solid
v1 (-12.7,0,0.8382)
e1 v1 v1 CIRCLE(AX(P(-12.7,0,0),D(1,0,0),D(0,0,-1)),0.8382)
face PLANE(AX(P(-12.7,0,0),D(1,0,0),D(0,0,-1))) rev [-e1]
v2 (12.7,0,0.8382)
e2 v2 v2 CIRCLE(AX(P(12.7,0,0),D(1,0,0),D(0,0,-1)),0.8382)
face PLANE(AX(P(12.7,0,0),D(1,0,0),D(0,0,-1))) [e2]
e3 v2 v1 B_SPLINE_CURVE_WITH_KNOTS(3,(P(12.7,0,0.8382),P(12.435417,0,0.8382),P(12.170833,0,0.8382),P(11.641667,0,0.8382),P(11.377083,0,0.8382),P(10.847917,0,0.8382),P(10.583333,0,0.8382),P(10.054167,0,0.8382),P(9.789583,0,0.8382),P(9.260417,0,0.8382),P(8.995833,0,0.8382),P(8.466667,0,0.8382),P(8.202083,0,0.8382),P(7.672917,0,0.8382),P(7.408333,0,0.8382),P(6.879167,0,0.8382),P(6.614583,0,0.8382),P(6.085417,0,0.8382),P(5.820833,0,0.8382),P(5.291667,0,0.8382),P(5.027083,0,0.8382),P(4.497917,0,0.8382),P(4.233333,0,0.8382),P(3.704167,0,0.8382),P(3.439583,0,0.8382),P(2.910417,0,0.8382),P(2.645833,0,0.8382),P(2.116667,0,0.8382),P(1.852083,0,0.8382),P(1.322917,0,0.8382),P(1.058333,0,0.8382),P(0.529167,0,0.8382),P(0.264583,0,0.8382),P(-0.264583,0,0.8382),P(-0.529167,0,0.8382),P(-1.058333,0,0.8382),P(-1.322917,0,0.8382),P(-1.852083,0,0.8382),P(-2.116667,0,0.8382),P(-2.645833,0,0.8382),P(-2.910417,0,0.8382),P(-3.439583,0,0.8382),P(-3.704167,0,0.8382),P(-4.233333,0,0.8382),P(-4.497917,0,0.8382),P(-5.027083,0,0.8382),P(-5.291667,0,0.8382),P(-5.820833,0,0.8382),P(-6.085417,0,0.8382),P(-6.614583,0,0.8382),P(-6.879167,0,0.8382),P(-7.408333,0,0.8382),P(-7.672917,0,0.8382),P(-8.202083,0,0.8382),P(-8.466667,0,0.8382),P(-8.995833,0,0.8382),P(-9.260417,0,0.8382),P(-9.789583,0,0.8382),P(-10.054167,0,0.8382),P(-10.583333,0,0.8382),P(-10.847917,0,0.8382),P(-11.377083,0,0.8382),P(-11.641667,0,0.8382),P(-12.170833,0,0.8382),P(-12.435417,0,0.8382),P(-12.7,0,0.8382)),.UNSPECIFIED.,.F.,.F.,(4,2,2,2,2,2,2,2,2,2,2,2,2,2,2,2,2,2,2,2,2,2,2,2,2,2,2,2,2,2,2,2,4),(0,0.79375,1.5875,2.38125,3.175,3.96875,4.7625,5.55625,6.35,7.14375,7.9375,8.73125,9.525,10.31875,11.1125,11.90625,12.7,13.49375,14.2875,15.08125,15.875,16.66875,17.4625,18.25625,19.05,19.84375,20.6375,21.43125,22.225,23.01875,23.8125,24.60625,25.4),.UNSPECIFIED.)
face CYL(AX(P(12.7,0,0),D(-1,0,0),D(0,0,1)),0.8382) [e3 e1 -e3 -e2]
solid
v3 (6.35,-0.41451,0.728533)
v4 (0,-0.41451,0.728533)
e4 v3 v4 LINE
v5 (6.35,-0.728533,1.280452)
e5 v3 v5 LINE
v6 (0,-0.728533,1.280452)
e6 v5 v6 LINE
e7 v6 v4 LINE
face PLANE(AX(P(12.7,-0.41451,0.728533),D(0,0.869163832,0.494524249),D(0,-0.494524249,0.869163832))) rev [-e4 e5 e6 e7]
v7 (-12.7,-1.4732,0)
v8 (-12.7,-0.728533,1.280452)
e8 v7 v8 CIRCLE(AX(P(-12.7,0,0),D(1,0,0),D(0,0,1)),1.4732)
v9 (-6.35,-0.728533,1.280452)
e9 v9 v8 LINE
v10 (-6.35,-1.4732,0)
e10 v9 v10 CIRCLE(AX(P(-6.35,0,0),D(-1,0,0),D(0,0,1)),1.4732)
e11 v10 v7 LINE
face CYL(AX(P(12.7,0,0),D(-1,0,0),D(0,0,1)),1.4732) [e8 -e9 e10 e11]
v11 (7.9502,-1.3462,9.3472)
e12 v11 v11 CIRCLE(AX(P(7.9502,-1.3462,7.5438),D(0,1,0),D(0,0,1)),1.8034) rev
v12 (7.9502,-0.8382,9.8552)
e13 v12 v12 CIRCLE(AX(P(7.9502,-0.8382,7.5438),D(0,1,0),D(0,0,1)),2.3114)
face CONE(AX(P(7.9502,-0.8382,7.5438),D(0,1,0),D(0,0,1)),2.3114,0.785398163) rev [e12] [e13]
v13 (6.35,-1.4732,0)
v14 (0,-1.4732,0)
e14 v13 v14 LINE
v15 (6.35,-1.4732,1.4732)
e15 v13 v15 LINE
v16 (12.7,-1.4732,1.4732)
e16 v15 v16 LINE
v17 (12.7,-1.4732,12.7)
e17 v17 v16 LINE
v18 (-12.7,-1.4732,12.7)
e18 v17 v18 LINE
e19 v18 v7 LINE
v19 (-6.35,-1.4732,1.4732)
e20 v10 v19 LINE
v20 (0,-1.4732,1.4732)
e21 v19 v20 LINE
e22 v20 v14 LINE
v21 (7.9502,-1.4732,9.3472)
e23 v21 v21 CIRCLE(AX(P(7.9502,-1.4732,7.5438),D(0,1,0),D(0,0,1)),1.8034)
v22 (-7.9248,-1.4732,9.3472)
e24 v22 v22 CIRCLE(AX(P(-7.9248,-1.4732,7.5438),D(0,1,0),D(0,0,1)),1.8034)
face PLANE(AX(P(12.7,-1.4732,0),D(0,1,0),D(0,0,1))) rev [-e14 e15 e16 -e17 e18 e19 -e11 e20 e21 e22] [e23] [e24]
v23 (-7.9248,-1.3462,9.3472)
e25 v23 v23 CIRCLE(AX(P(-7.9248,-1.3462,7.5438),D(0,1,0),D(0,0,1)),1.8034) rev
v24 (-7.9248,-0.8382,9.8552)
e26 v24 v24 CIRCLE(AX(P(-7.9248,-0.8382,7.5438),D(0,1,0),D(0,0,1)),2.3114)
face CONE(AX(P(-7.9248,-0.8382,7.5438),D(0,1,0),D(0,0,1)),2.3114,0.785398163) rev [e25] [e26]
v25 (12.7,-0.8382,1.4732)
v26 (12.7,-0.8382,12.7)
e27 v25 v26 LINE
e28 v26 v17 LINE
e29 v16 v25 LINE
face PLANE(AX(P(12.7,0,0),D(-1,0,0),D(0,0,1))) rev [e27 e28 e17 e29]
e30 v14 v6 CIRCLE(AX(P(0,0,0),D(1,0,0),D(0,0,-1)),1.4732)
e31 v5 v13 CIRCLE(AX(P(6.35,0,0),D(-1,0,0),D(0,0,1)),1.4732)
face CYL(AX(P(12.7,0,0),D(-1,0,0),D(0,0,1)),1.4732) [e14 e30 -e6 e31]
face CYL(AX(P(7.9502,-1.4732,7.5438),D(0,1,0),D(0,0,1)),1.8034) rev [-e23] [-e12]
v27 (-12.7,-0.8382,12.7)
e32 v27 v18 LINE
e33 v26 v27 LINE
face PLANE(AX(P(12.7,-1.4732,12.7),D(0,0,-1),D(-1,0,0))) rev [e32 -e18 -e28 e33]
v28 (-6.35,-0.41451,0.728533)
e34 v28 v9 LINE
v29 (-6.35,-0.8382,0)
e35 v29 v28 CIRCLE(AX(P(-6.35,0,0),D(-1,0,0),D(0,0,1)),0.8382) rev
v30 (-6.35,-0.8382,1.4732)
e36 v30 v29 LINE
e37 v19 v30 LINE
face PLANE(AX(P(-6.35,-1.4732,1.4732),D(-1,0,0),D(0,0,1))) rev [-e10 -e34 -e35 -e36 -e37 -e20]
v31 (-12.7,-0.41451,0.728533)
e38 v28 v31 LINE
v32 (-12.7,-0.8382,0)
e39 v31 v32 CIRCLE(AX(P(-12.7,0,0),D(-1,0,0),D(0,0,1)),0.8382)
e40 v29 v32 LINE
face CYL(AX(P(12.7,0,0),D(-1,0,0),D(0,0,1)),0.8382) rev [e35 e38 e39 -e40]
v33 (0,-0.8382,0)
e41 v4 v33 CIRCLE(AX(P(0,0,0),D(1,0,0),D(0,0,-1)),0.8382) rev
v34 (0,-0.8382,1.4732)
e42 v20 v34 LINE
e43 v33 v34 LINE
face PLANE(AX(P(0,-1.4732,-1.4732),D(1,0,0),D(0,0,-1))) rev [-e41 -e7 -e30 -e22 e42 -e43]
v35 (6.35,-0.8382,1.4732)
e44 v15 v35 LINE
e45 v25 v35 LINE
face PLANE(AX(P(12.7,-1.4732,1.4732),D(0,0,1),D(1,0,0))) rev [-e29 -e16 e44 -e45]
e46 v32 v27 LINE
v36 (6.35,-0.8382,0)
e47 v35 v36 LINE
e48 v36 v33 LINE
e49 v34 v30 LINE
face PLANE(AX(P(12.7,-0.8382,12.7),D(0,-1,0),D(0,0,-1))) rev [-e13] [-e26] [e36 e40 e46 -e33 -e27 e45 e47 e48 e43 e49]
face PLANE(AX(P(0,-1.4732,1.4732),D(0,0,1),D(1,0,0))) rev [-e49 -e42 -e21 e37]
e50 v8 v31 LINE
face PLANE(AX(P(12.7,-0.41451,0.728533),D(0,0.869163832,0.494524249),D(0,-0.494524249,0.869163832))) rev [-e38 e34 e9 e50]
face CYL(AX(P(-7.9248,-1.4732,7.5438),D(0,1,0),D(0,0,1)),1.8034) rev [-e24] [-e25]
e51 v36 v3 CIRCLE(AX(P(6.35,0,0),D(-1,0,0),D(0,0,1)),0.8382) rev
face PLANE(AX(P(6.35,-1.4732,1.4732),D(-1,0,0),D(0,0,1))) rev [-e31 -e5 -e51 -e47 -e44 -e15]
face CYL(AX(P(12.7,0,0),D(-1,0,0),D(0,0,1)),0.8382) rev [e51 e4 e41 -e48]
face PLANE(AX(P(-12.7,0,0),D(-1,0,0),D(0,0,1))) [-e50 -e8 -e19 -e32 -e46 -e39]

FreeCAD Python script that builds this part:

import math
import FreeCAD as App
import Part
import Sketcher
Q = App.Units.Quantity

doc = App.newDocument("Part")
body = doc.addObject("PartDesign::Body", "Body")

# Sketch on YZ plane
sketch1 = body.newObject("Sketcher::SketchObject", "Sketch")
sketch1.AttachmentSupport = (doc.getObject("YZ_Plane"), [""])
sketch1.MapMode = "FlatFace"
sketch1.addGeometry([
    Part.LineSegment(App.Vector(-1.5, 12.7, 0), App.Vector(-1.5, 0, 0)),  # 0
    Part.ArcOfCircle(Part.Circle(App.Vector(0, 0, 0), App.Vector(0, 0, 1), 1.5), math.radians(180), math.radians(480)),  # 1
    Part.LineSegment(App.Vector(-0.7, 1.3, 0), App.Vector(-0.4, 0.7, 0)),  # 2
    Part.ArcOfCircle(Part.Circle(App.Vector(0, 0, 0), App.Vector(0, 0, 1), 0.8), math.radians(180), math.radians(480)),  # 3
    Part.LineSegment(App.Vector(-0.8, 0, 0), App.Vector(-0.8, 12.7, 0)),  # 4
    Part.LineSegment(App.Vector(-0.8, 12.7, 0), App.Vector(-1.5, 12.7, 0)),  # 5
], False)
sketch1.addConstraint([
    Sketcher.Constraint("Tangent", 0, 2, 1, 1),
    Sketcher.Constraint("Coincident", 1, 2, 2, 1),
    Sketcher.Constraint("Coincident", 2, 2, 3, 2),
    Sketcher.Constraint("Tangent", 3, 1, 4, 1),
    Sketcher.Constraint("Coincident", 4, 2, 5, 1),
    Sketcher.Constraint("Coincident", 5, 2, 0, 1),
    Sketcher.Constraint("Vertical", 0),
    Sketcher.Constraint("Vertical", 4),
    Sketcher.Constraint("Horizontal", 5),
    Sketcher.Constraint("Coincident", 1, 3, -1, 1),
    Sketcher.Constraint("Coincident", 3, 3, -1, 1),
    Sketcher.Constraint("DistanceY", 0, 2, 0, 1, Q("0.5 in")),
    Sketcher.Constraint("Radius", 1, Q("0.058 in")),
    Sketcher.Constraint("Radius", 3, Q("0.033 in")),
    Sketcher.Constraint("DistanceX", 2, 2, -1, 1, Q("0.41451 mm")),
    Sketcher.Constraint("DistanceY", 2, 2, 1, 2, Q("0.551919 mm")),
])
pad1 = body.newObject("PartDesign::Pad", "Pad")
pad1.Profile = sketch1
pad1.Length = Q("1 in")
pad1.Midplane = True

# Sketch on XZ plane
sketch2 = body.newObject("Sketcher::SketchObject", "Sketch001")
sketch2.AttachmentSupport = (doc.getObject("XZ_Plane"), [""])
sketch2.MapMode = "FlatFace"
sketch2.addGeometry([
    Part.LineSegment(App.Vector(-6.3, -1.5, 0), App.Vector(-6.3, 1.5, 0)),
    Part.LineSegment(App.Vector(-6.3, 1.5, 0), App.Vector(0, 1.5, 0)),
    Part.LineSegment(App.Vector(0, 1.5, 0), App.Vector(0, -1.5, 0)),
    Part.LineSegment(App.Vector(0, -1.5, 0), App.Vector(-6.3, -1.5, 0)),
], False)
sketch2.addConstraint([
    Sketcher.Constraint("Coincident", 0, 2, 1, 1),
    Sketcher.Constraint("Coincident", 1, 2, 2, 1),
    Sketcher.Constraint("Coincident", 2, 2, 3, 1),
    Sketcher.Constraint("Coincident", 3, 2, 0, 1),
    Sketcher.Constraint("Vertical", 0),
    Sketcher.Constraint("Horizontal", 1),
    Sketcher.Constraint("Vertical", 2),
    Sketcher.Constraint("Horizontal", 3),
    Sketcher.Constraint("Symmetric", 1, 2, 2, 2, -1, 1),
    Sketcher.Constraint("DistanceX", 1, 1, 1, 2, Q("0.25 in")),
    Sketcher.Constraint("DistanceY", 0, 1, 0, 2, Q("0.116 in")),
])
pocket1 = body.newObject("PartDesign::Pocket", "Pocket")
pocket1.Profile = sketch2
pocket1.Length = 38.04166
pocket1.Midplane = True
doc.recompute()

linearpattern = body.newObject("PartDesign::LinearPattern", "LinearPattern")
linearpattern.Originals = [pocket1]
linearpattern.Direction = (doc.getObject("X_Axis"), [""])
linearpattern.Mode = "offset"
linearpattern.Offset = Q("0.5 in")
linearpattern.Occurrences = 6
body.Tip = linearpattern

# Sketch on YZ plane
sketch3 = body.newObject("Sketcher::SketchObject", "Sketch002")
sketch3.AttachmentSupport = (doc.getObject("YZ_Plane"), [""])
sketch3.MapMode = "FlatFace"
sketch3.AttachmentOffset = App.Placement(App.Vector(0, 0, 0.313 * 25.4), App.Rotation())
sketch3.addGeometry([
    Part.LineSegment(App.Vector(-0.8, 7.5, 0), App.Vector(-0.8, 9.9, 0)),
    Part.LineSegment(App.Vector(-0.8, 9.9, 0), App.Vector(-3.1, 7.5, 0)),
    Part.LineSegment(App.Vector(-3.1, 7.5, 0), App.Vector(-0.8, 7.5, 0)),
], False)
sketch3.addGeometry(Part.LineSegment(App.Vector(-0.8, 7.5, 0), App.Vector(-3.1, 7.5, 0)), True)  # axis
sketch3.addConstraint([
    Sketcher.Constraint("Coincident", 0, 2, 1, 1),
    Sketcher.Constraint("Coincident", 1, 2, 2, 1),
    Sketcher.Constraint("Coincident", 2, 2, 0, 1),
    Sketcher.Constraint("Vertical", 0),
    Sketcher.Constraint("Horizontal", 2),
    Sketcher.Constraint("Horizontal", 3),
    Sketcher.Constraint("Coincident", 3, 1, 2, 2),
    Sketcher.Constraint("Equal", 2, 3),
    Sketcher.Constraint("Equal", 3, 0),
    Sketcher.Constraint("DistanceX", 2, 1, 2, 2, Q("0.091 in")),
    Sketcher.Constraint("DistanceX", 0, 2, -1, 1, Q("0.033 in")),
    Sketcher.Constraint("DistanceY", -1, 1, 0, 2, Q("0.388 in")),
])
groove = body.newObject("PartDesign::Groove", "Groove")
groove.Profile = sketch3
groove.ReferenceAxis = (sketch3, ["Axis0"])
groove.Angle = 360

# Sketch on YZ plane
sketch4 = body.newObject("Sketcher::SketchObject", "Sketch003")
sketch4.AttachmentSupport = (doc.getObject("YZ_Plane"), [""])
sketch4.MapMode = "FlatFace"
sketch4.AttachmentOffset = App.Placement(App.Vector(0, 0, -0.312 * 25.4), App.Rotation())
sketch4.addGeometry([
    Part.LineSegment(App.Vector(-0.8, 7.5, 0), App.Vector(-0.8, 9.9, 0)),
    Part.LineSegment(App.Vector(-0.8, 9.9, 0), App.Vector(-3.1, 7.5, 0)),
    Part.LineSegment(App.Vector(-3.1, 7.5, 0), App.Vector(-0.8, 7.5, 0)),
], False)
sketch4.addGeometry(Part.LineSegment(App.Vector(-0.8, 7.5, 0), App.Vector(-3.1, 7.5, 0)), True)  # axis
sketch4.addConstraint([
    Sketcher.Constraint("Coincident", 0, 2, 1, 1),
    Sketcher.Constraint("Coincident", 1, 2, 2, 1),
    Sketcher.Constraint("Coincident", 2, 2, 0, 1),
    Sketcher.Constraint("Vertical", 0),
    Sketcher.Constraint("Horizontal", 2),
    Sketcher.Constraint("Horizontal", 3),
    Sketcher.Constraint("Coincident", 3, 1, 2, 2),
    Sketcher.Constraint("Equal", 2, 3),
    Sketcher.Constraint("Equal", 3, 0),
    Sketcher.Constraint("DistanceX", 2, 1, 2, 2, Q("0.091 in")),
    Sketcher.Constraint("DistanceX", 0, 2, -1, 1, Q("0.033 in")),
    Sketcher.Constraint("DistanceY", -1, 1, 0, 2, Q("0.388 in")),
])
groove2 = body.newObject("PartDesign::Groove", "Groove001")
groove2.Profile = sketch4
groove2.ReferenceAxis = (sketch4, ["Axis0"])
groove2.Angle = 360

# Sketch on XZ plane
sketch5 = body.newObject("Sketcher::SketchObject", "Sketch004")
sketch5.AttachmentSupport = (doc.getObject("XZ_Plane"), [""])
sketch5.MapMode = "FlatFace"
sketch5.addGeometry([
    Part.Circle(App.Vector(8, 7.5, 0), App.Vector(0, 0, 1), 1.8),
    Part.Circle(App.Vector(-7.9, 7.5, 0), App.Vector(0, 0, 1), 1.8),
], False)
sketch5.addConstraint([
    Sketcher.Constraint("Equal", 0, 1),
    Sketcher.Constraint("Horizontal", 0, 3, 1, 3),
    Sketcher.Constraint("Diameter", 0, Q("0.142 in")),
    Sketcher.Constraint("DistanceX", -1, 1, 0, 3, Q("0.313 in")),
    Sketcher.Constraint("DistanceY", -1, 1, 0, 3, Q("0.297 in")),
    Sketcher.Constraint("DistanceX", 1, 3, -1, 1, Q("0.312 in")),
])
pocket2 = body.newObject("PartDesign::Pocket", "Pocket001")
pocket2.Profile = sketch5
pocket2.Type = "ThroughAll"
pocket2.Midplane = True
body2 = doc.addObject("PartDesign::Body", "Body001")

# Sketch on YZ plane
sketch6 = body2.newObject("Sketcher::SketchObject", "Sketch005")
sketch6.AttachmentSupport = (doc.getObject("YZ_Plane001"), [""])
sketch6.MapMode = "FlatFace"
sketch6.addGeometry(Part.Circle(App.Vector(0, 0, 0), App.Vector(0, 0, 1), 0.8), False)
sketch6.addConstraint([
    Sketcher.Constraint("Coincident", 0, 3, -1, 1),
    Sketcher.Constraint("Diameter", 0, Q("0.066 in")),
])
pad2 = body2.newObject("PartDesign::Pad", "Pad001")
pad2.Profile = sketch6
pad2.Length = Q("1 in")
pad2.Midplane = True

doc.recompute()
